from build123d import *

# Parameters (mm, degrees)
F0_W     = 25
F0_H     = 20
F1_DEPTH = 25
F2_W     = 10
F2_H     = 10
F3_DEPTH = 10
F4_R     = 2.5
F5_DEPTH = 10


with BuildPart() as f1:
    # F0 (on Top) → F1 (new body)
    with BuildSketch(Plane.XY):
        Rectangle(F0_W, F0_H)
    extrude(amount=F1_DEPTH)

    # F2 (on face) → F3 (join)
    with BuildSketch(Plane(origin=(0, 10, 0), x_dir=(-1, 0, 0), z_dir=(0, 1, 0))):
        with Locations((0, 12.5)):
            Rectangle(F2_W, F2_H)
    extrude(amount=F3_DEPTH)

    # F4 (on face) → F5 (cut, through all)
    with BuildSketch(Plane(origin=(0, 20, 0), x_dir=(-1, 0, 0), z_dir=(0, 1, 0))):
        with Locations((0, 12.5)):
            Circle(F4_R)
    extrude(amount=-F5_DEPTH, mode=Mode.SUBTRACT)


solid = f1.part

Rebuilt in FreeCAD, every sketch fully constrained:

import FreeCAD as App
import Part
import Sketcher

V = App.Vector
Q = App.Units.Quantity


def add_polygon(sketch, points):
    """Adds a closed chain of lines whose ends are joined by coincident constraints."""
    first, n = sketch.GeometryCount, len(points)
    for a, b in zip(points, points[1:] + points[:1]):
        sketch.addGeometry(Part.LineSegment(App.Vector(*a, 0), App.Vector(*b, 0)), False)
    for i in range(n):
        sketch.addConstraint(Sketcher.Constraint("Coincident", first + i, 2, first + (i + 1) % n, 1))

doc = App.newDocument("Part")
body = doc.addObject("PartDesign::Body", "Body")

# Sketch on XY plane
sketch1 = body.newObject("Sketcher::SketchObject", "Sketch")
sketch1.AttachmentSupport = (doc.getObject("XY_Plane"), [""])
sketch1.MapMode = "FlatFace"
add_polygon(sketch1, [(-12, 10), (-12, -10), (12, -10), (12, 10)])  # lines 0-3
sketch1.addConstraint(Sketcher.Constraint("Vertical", 0))
sketch1.addConstraint(Sketcher.Constraint("Horizontal", 1))
sketch1.addConstraint(Sketcher.Constraint("Vertical", 2))
sketch1.addConstraint(Sketcher.Constraint("Horizontal", 3))
sketch1.addConstraint(Sketcher.Constraint("Symmetric", 0, 2, 2, 2, -1, 1))
sketch1.addConstraint(Sketcher.Constraint("DistanceX", 1, 1, 1, 2, Q("25 mm")))
sketch1.addConstraint(Sketcher.Constraint("DistanceY", 0, 2, 0, 1, Q("20 mm")))
pad1 = body.newObject("PartDesign::Pad", "Pad")
pad1.Profile = sketch1
pad1.Length = 25

# Sketch on XZ plane
sketch2 = body.newObject("Sketcher::SketchObject", "Sketch001")
sketch2.AttachmentSupport = (doc.getObject("XZ_Plane"), [""])
sketch2.MapMode = "FlatFace"
sketch2.AttachmentOffset = App.Placement(V(0, 0, -10), App.Rotation())
add_polygon(sketch2, [(5, 18), (5, 8), (-5, 8), (-5, 18)])  # lines 0-3
sketch2.addConstraint(Sketcher.Constraint("Vertical", 0))
sketch2.addConstraint(Sketcher.Constraint("Horizontal", 1))
sketch2.addConstraint(Sketcher.Constraint("Vertical", 2))
sketch2.addConstraint(Sketcher.Constraint("Horizontal", 3))
sketch2.addConstraint(Sketcher.Constraint("Equal", 3, 0))
sketch2.addConstraint(Sketcher.Constraint("DistanceX", 1, 2, 1, 1, Q("10 mm")))
sketch2.addConstraint(Sketcher.Constraint("DistanceX", -1, 1, 0, 2, Q("5 mm")))
sketch2.addConstraint(Sketcher.Constraint("DistanceY", -1, 1, 0, 2, Q("7.5 mm")))
pad2 = body.newObject("PartDesign::Pad", "Pad001")
pad2.Profile = sketch2
pad2.Length = 10
pad2.Reversed = True

# Sketch on XZ plane
sketch3 = body.newObject("Sketcher::SketchObject", "Sketch002")
sketch3.AttachmentSupport = (doc.getObject("XZ_Plane"), [""])
sketch3.MapMode = "FlatFace"
sketch3.AttachmentOffset = App.Placement(V(0, 0, -20), App.Rotation())
sketch3.addGeometry(Part.Circle(V(0, 12.5, 0), V(0, 0, 1), 2.5), False)
sketch3.addConstraint(Sketcher.Constraint("PointOnObject", 0, 3, -2))
sketch3.addConstraint(Sketcher.Constraint("Diameter", 0, Q("5 mm")))
sketch3.addConstraint(Sketcher.Constraint("DistanceY", -1, 1, 0, 3, Q("12.5 mm")))
pocket1 = body.newObject("PartDesign::Pocket", "Pocket")
pocket1.Profile = sketch3
pocket1.Length = 10
pocket1.Reversed = True

doc.recompute()
